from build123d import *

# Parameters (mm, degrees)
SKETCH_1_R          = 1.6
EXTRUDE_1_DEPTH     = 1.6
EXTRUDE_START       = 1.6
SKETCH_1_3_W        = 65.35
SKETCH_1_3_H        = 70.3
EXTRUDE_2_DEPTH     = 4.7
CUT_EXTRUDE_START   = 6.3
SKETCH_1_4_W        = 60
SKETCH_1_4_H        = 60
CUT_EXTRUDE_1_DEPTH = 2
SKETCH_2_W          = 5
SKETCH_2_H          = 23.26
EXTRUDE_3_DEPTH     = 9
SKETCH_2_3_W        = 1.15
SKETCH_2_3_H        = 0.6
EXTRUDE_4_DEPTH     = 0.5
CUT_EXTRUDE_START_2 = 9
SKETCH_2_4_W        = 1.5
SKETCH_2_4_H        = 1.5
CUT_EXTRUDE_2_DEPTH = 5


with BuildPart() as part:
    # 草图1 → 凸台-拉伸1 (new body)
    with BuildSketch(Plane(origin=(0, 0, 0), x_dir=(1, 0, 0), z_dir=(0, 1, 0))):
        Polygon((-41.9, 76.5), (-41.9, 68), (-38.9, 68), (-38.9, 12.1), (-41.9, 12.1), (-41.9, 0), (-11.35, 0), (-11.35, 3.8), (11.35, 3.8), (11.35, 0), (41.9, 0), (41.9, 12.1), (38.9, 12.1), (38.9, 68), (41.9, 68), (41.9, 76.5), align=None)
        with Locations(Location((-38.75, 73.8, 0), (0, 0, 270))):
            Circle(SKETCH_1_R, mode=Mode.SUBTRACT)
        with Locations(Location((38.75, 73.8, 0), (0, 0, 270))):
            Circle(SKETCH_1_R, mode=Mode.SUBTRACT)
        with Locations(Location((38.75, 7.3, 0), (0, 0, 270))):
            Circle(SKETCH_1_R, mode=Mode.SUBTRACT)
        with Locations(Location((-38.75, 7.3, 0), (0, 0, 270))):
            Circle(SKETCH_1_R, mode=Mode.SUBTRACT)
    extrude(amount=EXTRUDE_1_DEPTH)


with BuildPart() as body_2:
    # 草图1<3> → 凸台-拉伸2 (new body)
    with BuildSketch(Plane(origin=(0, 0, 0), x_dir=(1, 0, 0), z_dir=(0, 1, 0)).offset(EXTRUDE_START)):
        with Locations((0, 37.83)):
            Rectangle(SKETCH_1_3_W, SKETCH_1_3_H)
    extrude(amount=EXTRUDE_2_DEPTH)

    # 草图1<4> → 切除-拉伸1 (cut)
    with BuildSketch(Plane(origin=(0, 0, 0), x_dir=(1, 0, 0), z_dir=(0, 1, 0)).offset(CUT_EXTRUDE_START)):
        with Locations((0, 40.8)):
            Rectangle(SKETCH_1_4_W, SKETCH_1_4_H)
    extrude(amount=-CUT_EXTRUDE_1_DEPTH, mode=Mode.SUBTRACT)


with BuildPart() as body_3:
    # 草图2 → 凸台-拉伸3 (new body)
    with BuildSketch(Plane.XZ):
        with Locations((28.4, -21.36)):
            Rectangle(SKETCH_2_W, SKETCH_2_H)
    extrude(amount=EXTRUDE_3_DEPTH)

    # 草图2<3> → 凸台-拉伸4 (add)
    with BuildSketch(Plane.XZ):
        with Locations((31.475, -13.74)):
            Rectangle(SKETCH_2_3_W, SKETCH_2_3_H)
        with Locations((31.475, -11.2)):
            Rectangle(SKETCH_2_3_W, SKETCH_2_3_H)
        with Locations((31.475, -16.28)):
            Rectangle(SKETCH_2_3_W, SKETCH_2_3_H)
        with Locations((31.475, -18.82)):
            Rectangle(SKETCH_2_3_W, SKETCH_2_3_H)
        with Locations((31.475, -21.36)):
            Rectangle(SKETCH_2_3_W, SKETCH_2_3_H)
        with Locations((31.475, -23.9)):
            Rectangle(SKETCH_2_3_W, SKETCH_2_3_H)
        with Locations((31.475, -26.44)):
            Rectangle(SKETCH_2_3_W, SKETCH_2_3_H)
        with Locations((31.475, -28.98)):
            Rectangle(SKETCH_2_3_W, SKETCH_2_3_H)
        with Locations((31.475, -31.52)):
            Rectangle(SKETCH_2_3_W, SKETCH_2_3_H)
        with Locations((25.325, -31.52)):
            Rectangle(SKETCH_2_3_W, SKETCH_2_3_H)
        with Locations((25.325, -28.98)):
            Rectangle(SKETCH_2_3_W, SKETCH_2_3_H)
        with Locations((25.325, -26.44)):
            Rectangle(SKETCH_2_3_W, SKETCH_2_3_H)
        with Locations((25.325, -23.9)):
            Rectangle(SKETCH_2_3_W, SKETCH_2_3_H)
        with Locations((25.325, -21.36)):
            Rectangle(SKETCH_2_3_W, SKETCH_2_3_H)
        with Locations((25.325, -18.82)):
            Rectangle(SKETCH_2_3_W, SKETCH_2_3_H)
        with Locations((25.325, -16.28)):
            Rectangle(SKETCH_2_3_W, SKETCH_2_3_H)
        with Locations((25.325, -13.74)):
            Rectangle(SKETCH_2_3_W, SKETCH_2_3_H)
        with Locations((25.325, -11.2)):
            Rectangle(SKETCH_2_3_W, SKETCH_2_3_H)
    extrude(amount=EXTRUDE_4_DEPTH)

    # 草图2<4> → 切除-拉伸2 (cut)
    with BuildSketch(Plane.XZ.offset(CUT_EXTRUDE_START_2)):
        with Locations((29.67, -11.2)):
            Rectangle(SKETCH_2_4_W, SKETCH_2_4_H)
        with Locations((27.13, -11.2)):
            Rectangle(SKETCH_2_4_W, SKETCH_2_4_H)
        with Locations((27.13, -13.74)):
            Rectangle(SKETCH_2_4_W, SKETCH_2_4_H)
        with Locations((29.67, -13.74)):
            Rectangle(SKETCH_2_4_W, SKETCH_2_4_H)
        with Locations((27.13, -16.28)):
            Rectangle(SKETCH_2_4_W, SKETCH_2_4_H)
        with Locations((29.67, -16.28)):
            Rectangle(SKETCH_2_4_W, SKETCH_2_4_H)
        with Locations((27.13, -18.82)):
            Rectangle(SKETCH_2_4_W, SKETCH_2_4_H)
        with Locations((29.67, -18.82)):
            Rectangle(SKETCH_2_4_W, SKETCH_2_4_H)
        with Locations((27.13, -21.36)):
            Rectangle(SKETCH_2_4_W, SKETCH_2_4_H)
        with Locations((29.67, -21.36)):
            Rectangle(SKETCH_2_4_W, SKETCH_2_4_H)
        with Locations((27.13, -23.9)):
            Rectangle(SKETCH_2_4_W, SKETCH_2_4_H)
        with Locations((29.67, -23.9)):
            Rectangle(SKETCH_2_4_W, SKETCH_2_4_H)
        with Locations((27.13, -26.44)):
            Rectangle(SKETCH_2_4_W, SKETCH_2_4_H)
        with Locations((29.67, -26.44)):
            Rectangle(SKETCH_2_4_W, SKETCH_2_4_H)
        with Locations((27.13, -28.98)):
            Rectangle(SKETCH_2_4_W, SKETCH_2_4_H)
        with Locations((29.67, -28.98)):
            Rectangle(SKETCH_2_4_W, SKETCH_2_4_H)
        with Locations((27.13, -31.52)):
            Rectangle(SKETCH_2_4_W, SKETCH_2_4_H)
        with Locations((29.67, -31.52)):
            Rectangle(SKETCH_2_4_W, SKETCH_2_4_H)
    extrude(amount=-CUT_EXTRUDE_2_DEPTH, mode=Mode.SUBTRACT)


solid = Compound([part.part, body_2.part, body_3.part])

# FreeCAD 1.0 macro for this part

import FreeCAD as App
import Part
import Sketcher

V = App.Vector

doc = App.newDocument("Part")
body = doc.addObject("PartDesign::Body", "Body")

sketch1 = body.newObject("Sketcher::SketchObject", "Sketch")
sketch1.AttachmentSupport = (doc.getObject("XZ_Plane"), [""])
sketch1.MapMode = "FlatFace"
sketch1.addGeometry([
    Part.LineSegment(V(-41.9, -76.5, 0), V(-41.9, -68, 0)),
    Part.LineSegment(V(-41.9, -68, 0), V(-38.9, -68, 0)),
    Part.LineSegment(V(-38.9, -68, 0), V(-38.9, -12.1, 0)),
    Part.LineSegment(V(-38.9, -12.1, 0), V(-41.9, -12.1, 0)),
    Part.LineSegment(V(-41.9, -12.1, 0), V(-41.9, 0, 0)),
    Part.LineSegment(V(-41.9, 0, 0), V(-11.35, 0, 0)),
    Part.LineSegment(V(-11.35, 0, 0), V(-11.35, -3.8, 0)),
    Part.LineSegment(V(-11.35, -3.8, 0), V(11.35, -3.8, 0)),
    Part.LineSegment(V(11.35, -3.8, 0), V(11.35, 0, 0)),
    Part.LineSegment(V(11.35, 0, 0), V(41.9, 0, 0)),
    Part.LineSegment(V(41.9, 0, 0), V(41.9, -12.1, 0)),
    Part.LineSegment(V(41.9, -12.1, 0), V(38.9, -12.1, 0)),
    Part.LineSegment(V(38.9, -12.1, 0), V(38.9, -68, 0)),
    Part.LineSegment(V(38.9, -68, 0), V(41.9, -68, 0)),
    Part.LineSegment(V(41.9, -68, 0), V(41.9, -76.5, 0)),
    Part.LineSegment(V(41.9, -76.5, 0), V(-41.9, -76.5, 0)),
    Part.Circle(V(-38.75, -7.3, 0), V(0, 0, 1), 1.6),
    Part.Circle(V(38.75, -7.3, 0), V(0, 0, 1), 1.6),
    Part.Circle(V(-38.75, -73.8, 0), V(0, 0, 1), 1.6),
    Part.Circle(V(38.75, -73.8, 0), V(0, 0, 1), 1.6),
], False)
sketch1.addConstraint([
    Sketcher.Constraint("Coincident", 0, 2, 1, 1),
    Sketcher.Constraint("Coincident", 1, 2, 2, 1),
    Sketcher.Constraint("Coincident", 2, 2, 3, 1),
    Sketcher.Constraint("Coincident", 3, 2, 4, 1),
    Sketcher.Constraint("Coincident", 4, 2, 5, 1),
    Sketcher.Constraint("Coincident", 5, 2, 6, 1),
    Sketcher.Constraint("Coincident", 6, 2, 7, 1),
    Sketcher.Constraint("Coincident", 7, 2, 8, 1),
    Sketcher.Constraint("Coincident", 8, 2, 9, 1),
    Sketcher.Constraint("Coincident", 9, 2, 10, 1),
    Sketcher.Constraint("Coincident", 10, 2, 11, 1),
    Sketcher.Constraint("Coincident", 11, 2, 12, 1),
    Sketcher.Constraint("Coincident", 12, 2, 13, 1),
    Sketcher.Constraint("Coincident", 13, 2, 14, 1),
    Sketcher.Constraint("Coincident", 14, 2, 15, 1),
    Sketcher.Constraint("Coincident", 15, 2, 0, 1),
    Sketcher.Constraint("Vertical", 0),
    Sketcher.Constraint("Horizontal", 1),
    Sketcher.Constraint("Vertical", 2),
    Sketcher.Constraint("Horizontal", 3),
    Sketcher.Constraint("Vertical", 4),
    Sketcher.Constraint("Horizontal", 5),
    Sketcher.Constraint("Vertical", 6),
    Sketcher.Constraint("Horizontal", 7),
    Sketcher.Constraint("Vertical", 8),
    Sketcher.Constraint("Horizontal", 9),
    Sketcher.Constraint("Vertical", 10),
    Sketcher.Constraint("Horizontal", 11),
    Sketcher.Constraint("Vertical", 12),
    Sketcher.Constraint("Horizontal", 13),
    Sketcher.Constraint("Vertical", 14),
    Sketcher.Constraint("Horizontal", 15),
    Sketcher.Constraint("Equal", 16, 17),
    Sketcher.Constraint("Equal", 17, 18),
    Sketcher.Constraint("Equal", 18, 19),
    Sketcher.Constraint("Symmetric", 5, 2, 8, 2, -1, 1),
    Sketcher.Constraint("Symmetric", 16, 3, 17, 3, -2),
    Sketcher.Constraint("Symmetric", 18, 3, 19, 3, -2),
    Sketcher.Constraint("Symmetric", 4, 2, 9, 2, -2),
    Sketcher.Constraint("Symmetric", 2, 2, 11, 2, -2),
    Sketcher.Constraint("Symmetric", 0, 2, 13, 2, -2),
    Sketcher.Constraint("Vertical", 16, 3, 18, 3),
    Sketcher.Constraint("Vertical", 0, 2, 3, 2),
    Sketcher.Constraint("Diameter", 16, 3.2),
    Sketcher.Constraint("DistanceX", 1, 1, 1, 2, 3.0),
    Sketcher.Constraint("DistanceX", 7, 1, 7, 2, 22.7),
    Sketcher.Constraint("DistanceX", 15, 2, 15, 1, 83.8),
    Sketcher.Constraint("DistanceY", 0, 1, 0, 2, 8.5),
    Sketcher.Constraint("DistanceY", 2, 1, 2, 2, 55.9),
    Sketcher.Constraint("DistanceY", 4, 1, 4, 2, 12.1),
    Sketcher.Constraint("DistanceY", 6, 2, 6, 1, 3.8),
    Sketcher.Constraint("DistanceY", 16, 3, -1, 1, 7.3),
    Sketcher.Constraint("DistanceY", 18, 3, -1, 1, 73.8),
    Sketcher.Constraint("DistanceX", 16, 3, 17, 3, 77.5),
])
pad1 = body.newObject("PartDesign::Pad", "Pad")
pad1.Profile = sketch1
pad1.Length = 1.6
pad1.Reversed = True
body2 = doc.addObject("PartDesign::Body", "Body001")

sketch2 = body2.newObject("Sketcher::SketchObject", "Sketch001")
sketch2.AttachmentSupport = (doc.getObject("XZ_Plane001"), [""])
sketch2.MapMode = "FlatFace"
sketch2.AttachmentOffset = App.Placement(V(0, 0, -1.6), App.Rotation())
sketch2.addGeometry([
    Part.LineSegment(V(-32.675, -72.98, 0), V(-32.675, -2.68, 0)),
    Part.LineSegment(V(-32.675, -2.68, 0), V(32.675, -2.68, 0)),
    Part.LineSegment(V(32.675, -2.68, 0), V(32.675, -72.98, 0)),
    Part.LineSegment(V(32.675, -72.98, 0), V(-32.675, -72.98, 0)),
], False)
sketch2.addConstraint([
    Sketcher.Constraint("Coincident", 0, 2, 1, 1),
    Sketcher.Constraint("Coincident", 1, 2, 2, 1),
    Sketcher.Constraint("Coincident", 2, 2, 3, 1),
    Sketcher.Constraint("Coincident", 3, 2, 0, 1),
    Sketcher.Constraint("Vertical", 0),
    Sketcher.Constraint("Horizontal", 1),
    Sketcher.Constraint("Vertical", 2),
    Sketcher.Constraint("Horizontal", 3),
    Sketcher.Constraint("DistanceY", 0, 1, 0, 2, 70.3),
    Sketcher.Constraint("DistanceX", 1, 1, 1, 2, 65.35),
    Sketcher.Constraint("DistanceY", 0, 2, -1, 1, 2.68),
    Sketcher.Constraint("DistanceX", 0, 2, -1, 1, 32.675),
])
pad2 = body2.newObject("PartDesign::Pad", "Pad001")
pad2.Profile = sketch2
pad2.Length = 4.7
pad2.Reversed = True

sketch3 = body2.newObject("Sketcher::SketchObject", "Sketch002")
sketch3.AttachmentSupport = (doc.getObject("XZ_Plane001"), [""])
sketch3.MapMode = "FlatFace"
sketch3.AttachmentOffset = App.Placement(V(0, 0, -6.3), App.Rotation())
sketch3.addGeometry([
    Part.LineSegment(V(-30, -70.8, 0), V(-30, -10.8, 0)),
    Part.LineSegment(V(-30, -10.8, 0), V(30, -10.8, 0)),
    Part.LineSegment(V(30, -10.8, 0), V(30, -70.8, 0)),
    Part.LineSegment(V(30, -70.8, 0), V(-30, -70.8, 0)),
], False)
sketch3.addConstraint([
    Sketcher.Constraint("Coincident", 0, 2, 1, 1),
    Sketcher.Constraint("Coincident", 1, 2, 2, 1),
    Sketcher.Constraint("Coincident", 2, 2, 3, 1),
    Sketcher.Constraint("Coincident", 3, 2, 0, 1),
    Sketcher.Constraint("Vertical", 0),
    Sketcher.Constraint("Horizontal", 1),
    Sketcher.Constraint("Vertical", 2),
    Sketcher.Constraint("Horizontal", 3),
    Sketcher.Constraint("Equal", 3, 0),
    Sketcher.Constraint("DistanceX", 1, 1, 1, 2, 60.0),
    Sketcher.Constraint("DistanceX", 0, 2, -1, 1, 30.0),
    Sketcher.Constraint("DistanceY", 0, 2, -1, 1, 10.8),
])
pocket1 = body2.newObject("PartDesign::Pocket", "Pocket")
pocket1.Profile = sketch3
pocket1.Length = 2
pocket1.Reversed = True
body3 = doc.addObject("PartDesign::Body", "Body002")

sketch4 = body3.newObject("Sketcher::SketchObject", "Sketch003")
sketch4.AttachmentSupport = (doc.getObject("XZ_Plane002"), [""])
sketch4.MapMode = "FlatFace"
sketch4.addGeometry([
    Part.LineSegment(V(25.9, -9.73, 0), V(25.9, -32.99, 0)),
    Part.LineSegment(V(25.9, -32.99, 0), V(30.9, -32.99, 0)),
    Part.LineSegment(V(30.9, -32.99, 0), V(30.9, -9.73, 0)),
    Part.LineSegment(V(30.9, -9.73, 0), V(25.9, -9.73, 0)),
], False)
sketch4.addConstraint([
    Sketcher.Constraint("Coincident", 0, 2, 1, 1),
    Sketcher.Constraint("Coincident", 1, 2, 2, 1),
    Sketcher.Constraint("Coincident", 2, 2, 3, 1),
    Sketcher.Constraint("Coincident", 3, 2, 0, 1),
    Sketcher.Constraint("Vertical", 0),
    Sketcher.Constraint("Horizontal", 1),
    Sketcher.Constraint("Vertical", 2),
    Sketcher.Constraint("Horizontal", 3),
    Sketcher.Constraint("DistanceX", 1, 1, 1, 2, 5.0),
    Sketcher.Constraint("DistanceY", 0, 2, 0, 1, 23.26),
    Sketcher.Constraint("DistanceX", -1, 1, 0, 2, 25.9),
    Sketcher.Constraint("DistanceY", 0, 2, -1, 1, 32.99),
])
pad3 = body3.newObject("PartDesign::Pad", "Pad002")
pad3.Profile = sketch4
pad3.Length = 9

sketch5 = body3.newObject("Sketcher::SketchObject", "Sketch004")
sketch5.AttachmentSupport = (doc.getObject("XZ_Plane002"), [""])
sketch5.MapMode = "FlatFace"
sketch5.addGeometry([
    Part.LineSegment(V(30.9, -13.44, 0), V(30.9, -14.04, 0)),
    Part.LineSegment(V(30.9, -14.04, 0), V(32.05, -14.04, 0)),
    Part.LineSegment(V(32.05, -14.04, 0), V(32.05, -13.44, 0)),
    Part.LineSegment(V(32.05, -13.44, 0), V(30.9, -13.44, 0)),
    Part.LineSegment(V(30.9, -10.9, 0), V(30.9, -11.5, 0)),
    Part.LineSegment(V(30.9, -11.5, 0), V(32.05, -11.5, 0)),
    Part.LineSegment(V(32.05, -11.5, 0), V(32.05, -10.9, 0)),
    Part.LineSegment(V(32.05, -10.9, 0), V(30.9, -10.9, 0)),
    Part.LineSegment(V(30.9, -15.98, 0), V(30.9, -16.58, 0)),
    Part.LineSegment(V(30.9, -16.58, 0), V(32.05, -16.58, 0)),
    Part.LineSegment(V(32.05, -16.58, 0), V(32.05, -15.98, 0)),
    Part.LineSegment(V(32.05, -15.98, 0), V(30.9, -15.98, 0)),
    Part.LineSegment(V(30.9, -18.52, 0), V(30.9, -19.12, 0)),
    Part.LineSegment(V(30.9, -19.12, 0), V(32.05, -19.12, 0)),
    Part.LineSegment(V(32.05, -19.12, 0), V(32.05, -18.52, 0)),
    Part.LineSegment(V(32.05, -18.52, 0), V(30.9, -18.52, 0)),
    Part.LineSegment(V(30.9, -21.06, 0), V(30.9, -21.66, 0)),
    Part.LineSegment(V(30.9, -21.66, 0), V(32.05, -21.66, 0)),
    Part.LineSegment(V(32.05, -21.66, 0), V(32.05, -21.06, 0)),
    Part.LineSegment(V(32.05, -21.06, 0), V(30.9, -21.06, 0)),
    Part.LineSegment(V(30.9, -23.6, 0), V(30.9, -24.2, 0)),
    Part.LineSegment(V(30.9, -24.2, 0), V(32.05, -24.2, 0)),
    Part.LineSegment(V(32.05, -24.2, 0), V(32.05, -23.6, 0)),
    Part.LineSegment(V(32.05, -23.6, 0), V(30.9, -23.6, 0)),
    Part.LineSegment(V(30.9, -26.14, 0), V(30.9, -26.74, 0)),
    Part.LineSegment(V(30.9, -26.74, 0), V(32.05, -26.74, 0)),
    Part.LineSegment(V(32.05, -26.74, 0), V(32.05, -26.14, 0)),
    Part.LineSegment(V(32.05, -26.14, 0), V(30.9, -26.14, 0)),
    Part.LineSegment(V(30.9, -28.68, 0), V(30.9, -29.28, 0)),
    Part.LineSegment(V(30.9, -29.28, 0), V(32.05, -29.28, 0)),
    Part.LineSegment(V(32.05, -29.28, 0), V(32.05, -28.68, 0)),
    Part.LineSegment(V(32.05, -28.68, 0), V(30.9, -28.68, 0)),
    Part.LineSegment(V(30.9, -31.22, 0), V(30.9, -31.82, 0)),
    Part.LineSegment(V(30.9, -31.82, 0), V(32.05, -31.82, 0)),
    Part.LineSegment(V(32.05, -31.82, 0), V(32.05, -31.22, 0)),
    Part.LineSegment(V(32.05, -31.22, 0), V(30.9, -31.22, 0)),
    Part.LineSegment(V(24.75, -31.22, 0), V(24.75, -31.82, 0)),
    Part.LineSegment(V(24.75, -31.82, 0), V(25.9, -31.82, 0)),
    Part.LineSegment(V(25.9, -31.82, 0), V(25.9, -31.22, 0)),
    Part.LineSegment(V(25.9, -31.22, 0), V(24.75, -31.22, 0)),
    Part.LineSegment(V(24.75, -28.68, 0), V(24.75, -29.28, 0)),
    Part.LineSegment(V(24.75, -29.28, 0), V(25.9, -29.28, 0)),
    Part.LineSegment(V(25.9, -29.28, 0), V(25.9, -28.68, 0)),
    Part.LineSegment(V(25.9, -28.68, 0), V(24.75, -28.68, 0)),
    Part.LineSegment(V(24.75, -26.14, 0), V(24.75, -26.74, 0)),
    Part.LineSegment(V(24.75, -26.74, 0), V(25.9, -26.74, 0)),
    Part.LineSegment(V(25.9, -26.74, 0), V(25.9, -26.14, 0)),
    Part.LineSegment(V(25.9, -26.14, 0), V(24.75, -26.14, 0)),
    Part.LineSegment(V(24.75, -23.6, 0), V(24.75, -24.2, 0)),
    Part.LineSegment(V(24.75, -24.2, 0), V(25.9, -24.2, 0)),
    Part.LineSegment(V(25.9, -24.2, 0), V(25.9, -23.6, 0)),
    Part.LineSegment(V(25.9, -23.6, 0), V(24.75, -23.6, 0)),
    Part.LineSegment(V(24.75, -21.06, 0), V(24.75, -21.66, 0)),
    Part.LineSegment(V(24.75, -21.66, 0), V(25.9, -21.66, 0)),
    Part.LineSegment(V(25.9, -21.66, 0), V(25.9, -21.06, 0)),
    Part.LineSegment(V(25.9, -21.06, 0), V(24.75, -21.06, 0)),
    Part.LineSegment(V(24.75, -18.52, 0), V(24.75, -19.12, 0)),
    Part.LineSegment(V(24.75, -19.12, 0), V(25.9, -19.12, 0)),
    Part.LineSegment(V(25.9, -19.12, 0), V(25.9, -18.52, 0)),
    Part.LineSegment(V(25.9, -18.52, 0), V(24.75, -18.52, 0)),
    Part.LineSegment(V(24.75, -15.98, 0), V(24.75, -16.58, 0)),
    Part.LineSegment(V(24.75, -16.58, 0), V(25.9, -16.58, 0)),
    Part.LineSegment(V(25.9, -16.58, 0), V(25.9, -15.98, 0)),
    Part.LineSegment(V(25.9, -15.98, 0), V(24.75, -15.98, 0)),
    Part.LineSegment(V(24.75, -13.44, 0), V(24.75, -14.04, 0)),
    Part.LineSegment(V(24.75, -14.04, 0), V(25.9, -14.04, 0)),
    Part.LineSegment(V(25.9, -14.04, 0), V(25.9, -13.44, 0)),
    Part.LineSegment(V(25.9, -13.44, 0), V(24.75, -13.44, 0)),
    Part.LineSegment(V(24.75, -10.9, 0), V(24.75, -11.5, 0)),
    Part.LineSegment(V(24.75, -11.5, 0), V(25.9, -11.5, 0)),
    Part.LineSegment(V(25.9, -11.5, 0), V(25.9, -10.9, 0)),
    Part.LineSegment(V(25.9, -10.9, 0), V(24.75, -10.9, 0)),
], False)
sketch5.addConstraint([
    Sketcher.Constraint("Coincident", 0, 2, 1, 1),
    Sketcher.Constraint("Coincident", 1, 2, 2, 1),
    Sketcher.Constraint("Coincident", 2, 2, 3, 1),
    Sketcher.Constraint("Coincident", 3, 2, 0, 1),
    Sketcher.Constraint("Coincident", 4, 2, 5, 1),
    Sketcher.Constraint("Coincident", 5, 2, 6, 1),
    Sketcher.Constraint("Coincident", 6, 2, 7, 1),
    Sketcher.Constraint("Coincident", 7, 2, 4, 1),
    Sketcher.Constraint("Coincident", 8, 2, 9, 1),
    Sketcher.Constraint("Coincident", 9, 2, 10, 1),
    Sketcher.Constraint("Coincident", 10, 2, 11, 1),
    Sketcher.Constraint("Coincident", 11, 2, 8, 1),
    Sketcher.Constraint("Coincident", 12, 2, 13, 1),
    Sketcher.Constraint("Coincident", 13, 2, 14, 1),
    Sketcher.Constraint("Coincident", 14, 2, 15, 1),
    Sketcher.Constraint("Coincident", 15, 2, 12, 1),
    Sketcher.Constraint("Coincident", 16, 2, 17, 1),
    Sketcher.Constraint("Coincident", 17, 2, 18, 1),
    Sketcher.Constraint("Coincident", 18, 2, 19, 1),
    Sketcher.Constraint("Coincident", 19, 2, 16, 1),
    Sketcher.Constraint("Coincident", 20, 2, 21, 1),
    Sketcher.Constraint("Coincident", 21, 2, 22, 1),
    Sketcher.Constraint("Coincident", 22, 2, 23, 1),
    Sketcher.Constraint("Coincident", 23, 2, 20, 1),
    Sketcher.Constraint("Coincident", 24, 2, 25, 1),
    Sketcher.Constraint("Coincident", 25, 2, 26, 1),
    Sketcher.Constraint("Coincident", 26, 2, 27, 1),
    Sketcher.Constraint("Coincident", 27, 2, 24, 1),
    Sketcher.Constraint("Coincident", 28, 2, 29, 1),
    Sketcher.Constraint("Coincident", 29, 2, 30, 1),
    Sketcher.Constraint("Coincident", 30, 2, 31, 1),
    Sketcher.Constraint("Coincident", 31, 2, 28, 1),
    Sketcher.Constraint("Coincident", 32, 2, 33, 1),
    Sketcher.Constraint("Coincident", 33, 2, 34, 1),
    Sketcher.Constraint("Coincident", 34, 2, 35, 1),
    Sketcher.Constraint("Coincident", 35, 2, 32, 1),
    Sketcher.Constraint("Coincident", 36, 2, 37, 1),
    Sketcher.Constraint("Coincident", 37, 2, 38, 1),
    Sketcher.Constraint("Coincident", 38, 2, 39, 1),
    Sketcher.Constraint("Coincident", 39, 2, 36, 1),
    Sketcher.Constraint("Coincident", 40, 2, 41, 1),
    Sketcher.Constraint("Coincident", 41, 2, 42, 1),
    Sketcher.Constraint("Coincident", 42, 2, 43, 1),
    Sketcher.Constraint("Coincident", 43, 2, 40, 1),
    Sketcher.Constraint("Coincident", 44, 2, 45, 1),
    Sketcher.Constraint("Coincident", 45, 2, 46, 1),
    Sketcher.Constraint("Coincident", 46, 2, 47, 1),
    Sketcher.Constraint("Coincident", 47, 2, 44, 1),
    Sketcher.Constraint("Coincident", 48, 2, 49, 1),
    Sketcher.Constraint("Coincident", 49, 2, 50, 1),
    Sketcher.Constraint("Coincident", 50, 2, 51, 1),
    Sketcher.Constraint("Coincident", 51, 2, 48, 1),
    Sketcher.Constraint("Coincident", 52, 2, 53, 1),
    Sketcher.Constraint("Coincident", 53, 2, 54, 1),
    Sketcher.Constraint("Coincident", 54, 2, 55, 1),
    Sketcher.Constraint("Coincident", 55, 2, 52, 1),
    Sketcher.Constraint("Coincident", 56, 2, 57, 1),
    Sketcher.Constraint("Coincident", 57, 2, 58, 1),
    Sketcher.Constraint("Coincident", 58, 2, 59, 1),
    Sketcher.Constraint("Coincident", 59, 2, 56, 1),
    Sketcher.Constraint("Coincident", 60, 2, 61, 1),
    Sketcher.Constraint("Coincident", 61, 2, 62, 1),
    Sketcher.Constraint("Coincident", 62, 2, 63, 1),
    Sketcher.Constraint("Coincident", 63, 2, 60, 1),
    Sketcher.Constraint("Coincident", 64, 2, 65, 1),
    Sketcher.Constraint("Coincident", 65, 2, 66, 1),
    Sketcher.Constraint("Coincident", 66, 2, 67, 1),
    Sketcher.Constraint("Coincident", 67, 2, 64, 1),
    Sketcher.Constraint("Coincident", 68, 2, 69, 1),
    Sketcher.Constraint("Coincident", 69, 2, 70, 1),
    Sketcher.Constraint("Coincident", 70, 2, 71, 1),
    Sketcher.Constraint("Coincident", 71, 2, 68, 1),
    Sketcher.Constraint("Vertical", 0),
    Sketcher.Constraint("Horizontal", 1),
    Sketcher.Constraint("Vertical", 2),
    Sketcher.Constraint("Horizontal", 3),
    Sketcher.Constraint("Vertical", 4),
    Sketcher.Constraint("Horizontal", 5),
    Sketcher.Constraint("Vertical", 6),
    Sketcher.Constraint("Horizontal", 7),
    Sketcher.Constraint("Vertical", 8),
    Sketcher.Constraint("Horizontal", 9),
    Sketcher.Constraint("Vertical", 10),
    Sketcher.Constraint("Horizontal", 11),
    Sketcher.Constraint("Vertical", 12),
    Sketcher.Constraint("Horizontal", 13),
    Sketcher.Constraint("Vertical", 14),
    Sketcher.Constraint("Horizontal", 15),
    Sketcher.Constraint("Vertical", 16),
    Sketcher.Constraint("Horizontal", 17),
    Sketcher.Constraint("Vertical", 18),
    Sketcher.Constraint("Horizontal", 19),
    Sketcher.Constraint("Vertical", 20),
    Sketcher.Constraint("Horizontal", 21),
    Sketcher.Constraint("Vertical", 22),
    Sketcher.Constraint("Horizontal", 23),
    Sketcher.Constraint("Vertical", 24),
    Sketcher.Constraint("Horizontal", 25),
    Sketcher.Constraint("Vertical", 26),
    Sketcher.Constraint("Horizontal", 27),
    Sketcher.Constraint("Vertical", 28),
    Sketcher.Constraint("Horizontal", 29),
    Sketcher.Constraint("Vertical", 30),
    Sketcher.Constraint("Horizontal", 31),
    Sketcher.Constraint("Vertical", 32),
    Sketcher.Constraint("Horizontal", 33),
    Sketcher.Constraint("Vertical", 34),
    Sketcher.Constraint("Horizontal", 35),
    Sketcher.Constraint("Vertical", 36),
    Sketcher.Constraint("Horizontal", 37),
    Sketcher.Constraint("Vertical", 38),
    Sketcher.Constraint("Horizontal", 39),
    Sketcher.Constraint("Vertical", 40),
    Sketcher.Constraint("Horizontal", 41),
    Sketcher.Constraint("Vertical", 42),
    Sketcher.Constraint("Horizontal", 43),
    Sketcher.Constraint("Vertical", 44),
    Sketcher.Constraint("Horizontal", 45),
    Sketcher.Constraint("Vertical", 46),
    Sketcher.Constraint("Horizontal", 47),
    Sketcher.Constraint("Vertical", 48),
    Sketcher.Constraint("Horizontal", 49),
    Sketcher.Constraint("Vertical", 50),
    Sketcher.Constraint("Horizontal", 51),
    Sketcher.Constraint("Vertical", 52),
    Sketcher.Constraint("Horizontal", 53),
    Sketcher.Constraint("Vertical", 54),
    Sketcher.Constraint("Horizontal", 55),
    Sketcher.Constraint("Vertical", 56),
    Sketcher.Constraint("Horizontal", 57),
    Sketcher.Constraint("Vertical", 58),
    Sketcher.Constraint("Horizontal", 59),
    Sketcher.Constraint("Vertical", 60),
    Sketcher.Constraint("Horizontal", 61),
    Sketcher.Constraint("Vertical", 62),
    Sketcher.Constraint("Horizontal", 63),
    Sketcher.Constraint("Vertical", 64),
    Sketcher.Constraint("Horizontal", 65),
    Sketcher.Constraint("Vertical", 66),
    Sketcher.Constraint("Horizontal", 67),
    Sketcher.Constraint("Vertical", 68),
    Sketcher.Constraint("Horizontal", 69),
    Sketcher.Constraint("Vertical", 70),
    Sketcher.Constraint("Horizontal", 71),
    Sketcher.Constraint("Horizontal", 33, 2, 36, 2),
    Sketcher.Constraint("Horizontal", 35, 2, 38, 2),
    Sketcher.Constraint("Horizontal", 29, 2, 40, 2),
    Sketcher.Constraint("Horizontal", 31, 2, 42, 2),
    Sketcher.Constraint("Horizontal", 25, 2, 44, 2),
    Sketcher.Constraint("Horizontal", 27, 2, 46, 2),
    Sketcher.Constraint("Horizontal", 21, 2, 48, 2),
    Sketcher.Constraint("Horizontal", 23, 2, 50, 2),
    Sketcher.Constraint("Horizontal", 17, 2, 52, 2),
    Sketcher.Constraint("Horizontal", 19, 2, 54, 2),
    Sketcher.Constraint("Horizontal", 13, 2, 56, 2),
    Sketcher.Constraint("Horizontal", 15, 2, 58, 2),
    Sketcher.Constraint("Horizontal", 9, 2, 60, 2),
    Sketcher.Constraint("Horizontal", 11, 2, 62, 2),
    Sketcher.Constraint("Horizontal", 1, 2, 64, 2),
    Sketcher.Constraint("Horizontal", 3, 2, 66, 2),
    Sketcher.Constraint("Horizontal", 5, 2, 68, 2),
    Sketcher.Constraint("Horizontal", 7, 2, 70, 2),
    Sketcher.Constraint("Vertical", 3, 2, 4, 2),
    Sketcher.Constraint("Vertical", 2, 2, 5, 2),
    Sketcher.Constraint("Vertical", 7, 2, 8, 2),
    Sketcher.Constraint("Vertical", 6, 2, 9, 2),
    Sketcher.Constraint("Vertical", 11, 2, 12, 2),
    Sketcher.Constraint("Vertical", 10, 2, 13, 2),
    Sketcher.Constraint("Vertical", 15, 2, 16, 2),
    Sketcher.Constraint("Vertical", 14, 2, 17, 2),
    Sketcher.Constraint("Vertical", 19, 2, 20, 2),
    Sketcher.Constraint("Vertical", 18, 2, 21, 2),
    Sketcher.Constraint("Vertical", 23, 2, 24, 2),
    Sketcher.Constraint("Vertical", 22, 2, 25, 2),
    Sketcher.Constraint("Vertical", 27, 2, 28, 2),
    Sketcher.Constraint("Vertical", 26, 2, 29, 2),
    Sketcher.Constraint("Vertical", 31, 2, 32, 2),
    Sketcher.Constraint("Vertical", 30, 2, 33, 2),
    Sketcher.Constraint("Vertical", 39, 2, 40, 2),
    Sketcher.Constraint("Vertical", 38, 2, 41, 2),
    Sketcher.Constraint("Vertical", 43, 2, 44, 2),
    Sketcher.Constraint("Vertical", 42, 2, 45, 2),
    Sketcher.Constraint("Vertical", 47, 2, 48, 2),
    Sketcher.Constraint("Vertical", 46, 2, 49, 2),
    Sketcher.Constraint("Vertical", 51, 2, 52, 2),
    Sketcher.Constraint("Vertical", 50, 2, 53, 2),
    Sketcher.Constraint("Vertical", 55, 2, 56, 2),
    Sketcher.Constraint("Vertical", 54, 2, 57, 2),
    Sketcher.Constraint("Vertical", 59, 2, 60, 2),
    Sketcher.Constraint("Vertical", 58, 2, 61, 2),
    Sketcher.Constraint("Vertical", 63, 2, 64, 2),
    Sketcher.Constraint("Vertical", 62, 2, 65, 2),
    Sketcher.Constraint("Vertical", 67, 2, 68, 2),
    Sketcher.Constraint("Vertical", 66, 2, 69, 2),
    Sketcher.Constraint("Equal", 35, 37),
    Sketcher.Constraint("Equal", 2, 4),
    Sketcher.Constraint("Equal", 6, 8),
    Sketcher.Constraint("Equal", 10, 12),
    Sketcher.Constraint("Equal", 14, 16),
    Sketcher.Constraint("Equal", 18, 20),
    Sketcher.Constraint("Equal", 22, 24),
    Sketcher.Constraint("Equal", 26, 28),
    Sketcher.Constraint("Equal", 30, 32),
    Sketcher.Constraint("DistanceY", 0, 2, 0, 1, 0.6),
    Sketcher.Constraint("DistanceX", 1, 1, 1, 2, 1.15),
    Sketcher.Constraint("DistanceX", -1, 1, 0, 2, 30.9),
    Sketcher.Constraint("DistanceY", 4, 2, -1, 1, 11.5),
    Sketcher.Constraint("DistanceY", 20, 2, -1, 1, 24.2),
    Sketcher.Constraint("DistanceX", -1, 1, 37, 2, 25.9),
    Sketcher.Constraint("DistanceY", 0, 2, -1, 1, 14.04),
    Sketcher.Constraint("DistanceY", 8, 2, -1, 1, 16.58),
    Sketcher.Constraint("DistanceY", 12, 2, -1, 1, 19.12),
    Sketcher.Constraint("DistanceY", 16, 2, -1, 1, 21.66),
    Sketcher.Constraint("DistanceY", 24, 2, -1, 1, 26.74),
    Sketcher.Constraint("DistanceY", 28, 2, -1, 1, 29.28),
    Sketcher.Constraint("DistanceY", 32, 2, -1, 1, 31.82),
])
pad4 = body3.newObject("PartDesign::Pad", "Pad003")
pad4.Profile = sketch5
pad4.Length = 0.5

sketch6 = body3.newObject("Sketcher::SketchObject", "Sketch005")
sketch6.AttachmentSupport = (doc.getObject("XZ_Plane002"), [""])
sketch6.MapMode = "FlatFace"
sketch6.AttachmentOffset = App.Placement(V(0, 0, 9), App.Rotation())
sketch6.addGeometry([
    Part.LineSegment(V(28.92, -10.45, 0), V(28.92, -11.95, 0)),
    Part.LineSegment(V(28.92, -11.95, 0), V(30.42, -11.95, 0)),
    Part.LineSegment(V(30.42, -11.95, 0), V(30.42, -10.45, 0)),
    Part.LineSegment(V(30.42, -10.45, 0), V(28.92, -10.45, 0)),
    Part.LineSegment(V(26.38, -10.45, 0), V(26.38, -11.95, 0)),
    Part.LineSegment(V(26.38, -11.95, 0), V(27.88, -11.95, 0)),
    Part.LineSegment(V(27.88, -11.95, 0), V(27.88, -10.45, 0)),
    Part.LineSegment(V(27.88, -10.45, 0), V(26.38, -10.45, 0)),
    Part.LineSegment(V(26.38, -12.99, 0), V(26.38, -14.49, 0)),
    Part.LineSegment(V(26.38, -14.49, 0), V(27.88, -14.49, 0)),
    Part.LineSegment(V(27.88, -14.49, 0), V(27.88, -12.99, 0)),
    Part.LineSegment(V(27.88, -12.99, 0), V(26.38, -12.99, 0)),
    Part.LineSegment(V(28.92, -12.99, 0), V(28.92, -14.49, 0)),
    Part.LineSegment(V(28.92, -14.49, 0), V(30.42, -14.49, 0)),
    Part.LineSegment(V(30.42, -14.49, 0), V(30.42, -12.99, 0)),
    Part.LineSegment(V(30.42, -12.99, 0), V(28.92, -12.99, 0)),
    Part.LineSegment(V(26.38, -15.53, 0), V(26.38, -17.03, 0)),
    Part.LineSegment(V(26.38, -17.03, 0), V(27.88, -17.03, 0)),
    Part.LineSegment(V(27.88, -17.03, 0), V(27.88, -15.53, 0)),
    Part.LineSegment(V(27.88, -15.53, 0), V(26.38, -15.53, 0)),
    Part.LineSegment(V(28.92, -15.53, 0), V(28.92, -17.03, 0)),
    Part.LineSegment(V(28.92, -17.03, 0), V(30.42, -17.03, 0)),
    Part.LineSegment(V(30.42, -17.03, 0), V(30.42, -15.53, 0)),
    Part.LineSegment(V(30.42, -15.53, 0), V(28.92, -15.53, 0)),
    Part.LineSegment(V(26.38, -18.07, 0), V(26.38, -19.57, 0)),
    Part.LineSegment(V(26.38, -19.57, 0), V(27.88, -19.57, 0)),
    Part.LineSegment(V(27.88, -19.57, 0), V(27.88, -18.07, 0)),
    Part.LineSegment(V(27.88, -18.07, 0), V(26.38, -18.07, 0)),
    Part.LineSegment(V(28.92, -18.07, 0), V(28.92, -19.57, 0)),
    Part.LineSegment(V(28.92, -19.57, 0), V(30.42, -19.57, 0)),
    Part.LineSegment(V(30.42, -19.57, 0), V(30.42, -18.07, 0)),
    Part.LineSegment(V(30.42, -18.07, 0), V(28.92, -18.07, 0)),
    Part.LineSegment(V(26.38, -20.61, 0), V(26.38, -22.11, 0)),
    Part.LineSegment(V(26.38, -22.11, 0), V(27.88, -22.11, 0)),
    Part.LineSegment(V(27.88, -22.11, 0), V(27.88, -20.61, 0)),
    Part.LineSegment(V(27.88, -20.61, 0), V(26.38, -20.61, 0)),
    Part.LineSegment(V(28.92, -20.61, 0), V(28.92, -22.11, 0)),
    Part.LineSegment(V(28.92, -22.11, 0), V(30.42, -22.11, 0)),
    Part.LineSegment(V(30.42, -22.11, 0), V(30.42, -20.61, 0)),
    Part.LineSegment(V(30.42, -20.61, 0), V(28.92, -20.61, 0)),
    Part.LineSegment(V(26.38, -23.15, 0), V(26.38, -24.65, 0)),
    Part.LineSegment(V(26.38, -24.65, 0), V(27.88, -24.65, 0)),
    Part.LineSegment(V(27.88, -24.65, 0), V(27.88, -23.15, 0)),
    Part.LineSegment(V(27.88, -23.15, 0), V(26.38, -23.15, 0)),
    Part.LineSegment(V(28.92, -23.15, 0), V(28.92, -24.65, 0)),
    Part.LineSegment(V(28.92, -24.65, 0), V(30.42, -24.65, 0)),
    Part.LineSegment(V(30.42, -24.65, 0), V(30.42, -23.15, 0)),
    Part.LineSegment(V(30.42, -23.15, 0), V(28.92, -23.15, 0)),
    Part.LineSegment(V(26.38, -25.69, 0), V(26.38, -27.19, 0)),
    Part.LineSegment(V(26.38, -27.19, 0), V(27.88, -27.19, 0)),
    Part.LineSegment(V(27.88, -27.19, 0), V(27.88, -25.69, 0)),
    Part.LineSegment(V(27.88, -25.69, 0), V(26.38, -25.69, 0)),
    Part.LineSegment(V(28.92, -25.69, 0), V(28.92, -27.19, 0)),
    Part.LineSegment(V(28.92, -27.19, 0), V(30.42, -27.19, 0)),
    Part.LineSegment(V(30.42, -27.19, 0), V(30.42, -25.69, 0)),
    Part.LineSegment(V(30.42, -25.69, 0), V(28.92, -25.69, 0)),
    Part.LineSegment(V(26.38, -28.23, 0), V(26.38, -29.73, 0)),
    Part.LineSegment(V(26.38, -29.73, 0), V(27.88, -29.73, 0)),
    Part.LineSegment(V(27.88, -29.73, 0), V(27.88, -28.23, 0)),
    Part.LineSegment(V(27.88, -28.23, 0), V(26.38, -28.23, 0)),
    Part.LineSegment(V(28.92, -28.23, 0), V(28.92, -29.73, 0)),
    Part.LineSegment(V(28.92, -29.73, 0), V(30.42, -29.73, 0)),
    Part.LineSegment(V(30.42, -29.73, 0), V(30.42, -28.23, 0)),
    Part.LineSegment(V(30.42, -28.23, 0), V(28.92, -28.23, 0)),
    Part.LineSegment(V(26.38, -30.77, 0), V(26.38, -32.27, 0)),
    Part.LineSegment(V(26.38, -32.27, 0), V(27.88, -32.27, 0)),
    Part.LineSegment(V(27.88, -32.27, 0), V(27.88, -30.77, 0)),
    Part.LineSegment(V(27.88, -30.77, 0), V(26.38, -30.77, 0)),
    Part.LineSegment(V(28.92, -30.77, 0), V(28.92, -32.27, 0)),
    Part.LineSegment(V(28.92, -32.27, 0), V(30.42, -32.27, 0)),
    Part.LineSegment(V(30.42, -32.27, 0), V(30.42, -30.77, 0)),
    Part.LineSegment(V(30.42, -30.77, 0), V(28.92, -30.77, 0)),
], False)
sketch6.addConstraint([
    Sketcher.Constraint("Coincident", 0, 2, 1, 1),
    Sketcher.Constraint("Coincident", 1, 2, 2, 1),
    Sketcher.Constraint("Coincident", 2, 2, 3, 1),
    Sketcher.Constraint("Coincident", 3, 2, 0, 1),
    Sketcher.Constraint("Coincident", 4, 2, 5, 1),
    Sketcher.Constraint("Coincident", 5, 2, 6, 1),
    Sketcher.Constraint("Coincident", 6, 2, 7, 1),
    Sketcher.Constraint("Coincident", 7, 2, 4, 1),
    Sketcher.Constraint("Coincident", 8, 2, 9, 1),
    Sketcher.Constraint("Coincident", 9, 2, 10, 1),
    Sketcher.Constraint("Coincident", 10, 2, 11, 1),
    Sketcher.Constraint("Coincident", 11, 2, 8, 1),
    Sketcher.Constraint("Coincident", 12, 2, 13, 1),
    Sketcher.Constraint("Coincident", 13, 2, 14, 1),
    Sketcher.Constraint("Coincident", 14, 2, 15, 1),
    Sketcher.Constraint("Coincident", 15, 2, 12, 1),
    Sketcher.Constraint("Coincident", 16, 2, 17, 1),
    Sketcher.Constraint("Coincident", 17, 2, 18, 1),
    Sketcher.Constraint("Coincident", 18, 2, 19, 1),
    Sketcher.Constraint("Coincident", 19, 2, 16, 1),
    Sketcher.Constraint("Coincident", 20, 2, 21, 1),
    Sketcher.Constraint("Coincident", 21, 2, 22, 1),
    Sketcher.Constraint("Coincident", 22, 2, 23, 1),
    Sketcher.Constraint("Coincident", 23, 2, 20, 1),
    Sketcher.Constraint("Coincident", 24, 2, 25, 1),
    Sketcher.Constraint("Coincident", 25, 2, 26, 1),
    Sketcher.Constraint("Coincident", 26, 2, 27, 1),
    Sketcher.Constraint("Coincident", 27, 2, 24, 1),
    Sketcher.Constraint("Coincident", 28, 2, 29, 1),
    Sketcher.Constraint("Coincident", 29, 2, 30, 1),
    Sketcher.Constraint("Coincident", 30, 2, 31, 1),
    Sketcher.Constraint("Coincident", 31, 2, 28, 1),
    Sketcher.Constraint("Coincident", 32, 2, 33, 1),
    Sketcher.Constraint("Coincident", 33, 2, 34, 1),
    Sketcher.Constraint("Coincident", 34, 2, 35, 1),
    Sketcher.Constraint("Coincident", 35, 2, 32, 1),
    Sketcher.Constraint("Coincident", 36, 2, 37, 1),
    Sketcher.Constraint("Coincident", 37, 2, 38, 1),
    Sketcher.Constraint("Coincident", 38, 2, 39, 1),
    Sketcher.Constraint("Coincident", 39, 2, 36, 1),
    Sketcher.Constraint("Coincident", 40, 2, 41, 1),
    Sketcher.Constraint("Coincident", 41, 2, 42, 1),
    Sketcher.Constraint("Coincident", 42, 2, 43, 1),
    Sketcher.Constraint("Coincident", 43, 2, 40, 1),
    Sketcher.Constraint("Coincident", 44, 2, 45, 1),
    Sketcher.Constraint("Coincident", 45, 2, 46, 1),
    Sketcher.Constraint("Coincident", 46, 2, 47, 1),
    Sketcher.Constraint("Coincident", 47, 2, 44, 1),
    Sketcher.Constraint("Coincident", 48, 2, 49, 1),
    Sketcher.Constraint("Coincident", 49, 2, 50, 1),
    Sketcher.Constraint("Coincident", 50, 2, 51, 1),
    Sketcher.Constraint("Coincident", 51, 2, 48, 1),
    Sketcher.Constraint("Coincident", 52, 2, 53, 1),
    Sketcher.Constraint("Coincident", 53, 2, 54, 1),
    Sketcher.Constraint("Coincident", 54, 2, 55, 1),
    Sketcher.Constraint("Coincident", 55, 2, 52, 1),
    Sketcher.Constraint("Coincident", 56, 2, 57, 1),
    Sketcher.Constraint("Coincident", 57, 2, 58, 1),
    Sketcher.Constraint("Coincident", 58, 2, 59, 1),
    Sketcher.Constraint("Coincident", 59, 2, 56, 1),
    Sketcher.Constraint("Coincident", 60, 2, 61, 1),
    Sketcher.Constraint("Coincident", 61, 2, 62, 1),
    Sketcher.Constraint("Coincident", 62, 2, 63, 1),
    Sketcher.Constraint("Coincident", 63, 2, 60, 1),
    Sketcher.Constraint("Coincident", 64, 2, 65, 1),
    Sketcher.Constraint("Coincident", 65, 2, 66, 1),
    Sketcher.Constraint("Coincident", 66, 2, 67, 1),
    Sketcher.Constraint("Coincident", 67, 2, 64, 1),
    Sketcher.Constraint("Coincident", 68, 2, 69, 1),
    Sketcher.Constraint("Coincident", 69, 2, 70, 1),
    Sketcher.Constraint("Coincident", 70, 2, 71, 1),
    Sketcher.Constraint("Coincident", 71, 2, 68, 1),
    Sketcher.Constraint("Vertical", 0),
    Sketcher.Constraint("Horizontal", 1),
    Sketcher.Constraint("Vertical", 2),
    Sketcher.Constraint("Horizontal", 3),
    Sketcher.Constraint("Vertical", 4),
    Sketcher.Constraint("Horizontal", 5),
    Sketcher.Constraint("Vertical", 6),
    Sketcher.Constraint("Horizontal", 7),
    Sketcher.Constraint("Vertical", 8),
    Sketcher.Constraint("Horizontal", 9),
    Sketcher.Constraint("Vertical", 10),
    Sketcher.Constraint("Horizontal", 11),
    Sketcher.Constraint("Vertical", 12),
    Sketcher.Constraint("Horizontal", 13),
    Sketcher.Constraint("Vertical", 14),
    Sketcher.Constraint("Horizontal", 15),
    Sketcher.Constraint("Vertical", 16),
    Sketcher.Constraint("Horizontal", 17),
    Sketcher.Constraint("Vertical", 18),
    Sketcher.Constraint("Horizontal", 19),
    Sketcher.Constraint("Vertical", 20),
    Sketcher.Constraint("Horizontal", 21),
    Sketcher.Constraint("Vertical", 22),
    Sketcher.Constraint("Horizontal", 23),
    Sketcher.Constraint("Vertical", 24),
    Sketcher.Constraint("Horizontal", 25),
    Sketcher.Constraint("Vertical", 26),
    Sketcher.Constraint("Horizontal", 27),
    Sketcher.Constraint("Vertical", 28),
    Sketcher.Constraint("Horizontal", 29),
    Sketcher.Constraint("Vertical", 30),
    Sketcher.Constraint("Horizontal", 31),
    Sketcher.Constraint("Vertical", 32),
    Sketcher.Constraint("Horizontal", 33),
    Sketcher.Constraint("Vertical", 34),
    Sketcher.Constraint("Horizontal", 35),
    Sketcher.Constraint("Vertical", 36),
    Sketcher.Constraint("Horizontal", 37),
    Sketcher.Constraint("Vertical", 38),
    Sketcher.Constraint("Horizontal", 39),
    Sketcher.Constraint("Vertical", 40),
    Sketcher.Constraint("Horizontal", 41),
    Sketcher.Constraint("Vertical", 42),
    Sketcher.Constraint("Horizontal", 43),
    Sketcher.Constraint("Vertical", 44),
    Sketcher.Constraint("Horizontal", 45),
    Sketcher.Constraint("Vertical", 46),
    Sketcher.Constraint("Horizontal", 47),
    Sketcher.Constraint("Vertical", 48),
    Sketcher.Constraint("Horizontal", 49),
    Sketcher.Constraint("Vertical", 50),
    Sketcher.Constraint("Horizontal", 51),
    Sketcher.Constraint("Vertical", 52),
    Sketcher.Constraint("Horizontal", 53),
    Sketcher.Constraint("Vertical", 54),
    Sketcher.Constraint("Horizontal", 55),
    Sketcher.Constraint("Vertical", 56),
    Sketcher.Constraint("Horizontal", 57),
    Sketcher.Constraint("Vertical", 58),
    Sketcher.Constraint("Horizontal", 59),
    Sketcher.Constraint("Vertical", 60),
    Sketcher.Constraint("Horizontal", 61),
    Sketcher.Constraint("Vertical", 62),
    Sketcher.Constraint("Horizontal", 63),
    Sketcher.Constraint("Vertical", 64),
    Sketcher.Constraint("Horizontal", 65),
    Sketcher.Constraint("Vertical", 66),
    Sketcher.Constraint("Horizontal", 67),
    Sketcher.Constraint("Vertical", 68),
    Sketcher.Constraint("Horizontal", 69),
    Sketcher.Constraint("Vertical", 70),
    Sketcher.Constraint("Horizontal", 71),
    Sketcher.Constraint("Horizontal", 1, 2, 4, 2),
    Sketcher.Constraint("Horizontal", 3, 2, 6, 2),
    Sketcher.Constraint("Horizontal", 9, 2, 12, 2),
    Sketcher.Constraint("Horizontal", 11, 2, 14, 2),
    Sketcher.Constraint("Horizontal", 17, 2, 20, 2),
    Sketcher.Constraint("Horizontal", 19, 2, 22, 2),
    Sketcher.Constraint("Horizontal", 25, 2, 28, 2),
    Sketcher.Constraint("Horizontal", 27, 2, 30, 2),
    Sketcher.Constraint("Horizontal", 33, 2, 36, 2),
    Sketcher.Constraint("Horizontal", 35, 2, 38, 2),
    Sketcher.Constraint("Horizontal", 41, 2, 44, 2),
    Sketcher.Constraint("Horizontal", 43, 2, 46, 2),
    Sketcher.Constraint("Horizontal", 49, 2, 52, 2),
    Sketcher.Constraint("Horizontal", 51, 2, 54, 2),
    Sketcher.Constraint("Horizontal", 57, 2, 60, 2),
    Sketcher.Constraint("Horizontal", 59, 2, 62, 2),
    Sketcher.Constraint("Horizontal", 65, 2, 68, 2),
    Sketcher.Constraint("Horizontal", 67, 2, 70, 2),
    Sketcher.Constraint("Vertical", 7, 2, 8, 2),
    Sketcher.Constraint("Vertical", 6, 2, 9, 2),
    Sketcher.Constraint("Vertical", 3, 2, 12, 2),
    Sketcher.Constraint("Vertical", 2, 2, 13, 2),
    Sketcher.Constraint("Vertical", 11, 2, 16, 2),
    Sketcher.Constraint("Vertical", 10, 2, 17, 2),
    Sketcher.Constraint("Vertical", 15, 2, 20, 2),
    Sketcher.Constraint("Vertical", 14, 2, 21, 2),
    Sketcher.Constraint("Vertical", 19, 2, 24, 2),
    Sketcher.Constraint("Vertical", 18, 2, 25, 2),
    Sketcher.Constraint("Vertical", 23, 2, 28, 2),
    Sketcher.Constraint("Vertical", 22, 2, 29, 2),
    Sketcher.Constraint("Vertical", 27, 2, 32, 2),
    Sketcher.Constraint("Vertical", 26, 2, 33, 2),
    Sketcher.Constraint("Vertical", 31, 2, 36, 2),
    Sketcher.Constraint("Vertical", 30, 2, 37, 2),
    Sketcher.Constraint("Vertical", 35, 2, 40, 2),
    Sketcher.Constraint("Vertical", 34, 2, 41, 2),
    Sketcher.Constraint("Vertical", 39, 2, 44, 2),
    Sketcher.Constraint("Vertical", 38, 2, 45, 2),
    Sketcher.Constraint("Vertical", 43, 2, 48, 2),
    Sketcher.Constraint("Vertical", 42, 2, 49, 2),
    Sketcher.Constraint("Vertical", 47, 2, 52, 2),
    Sketcher.Constraint("Vertical", 46, 2, 53, 2),
    Sketcher.Constraint("Vertical", 51, 2, 56, 2),
    Sketcher.Constraint("Vertical", 50, 2, 57, 2),
    Sketcher.Constraint("Vertical", 55, 2, 60, 2),
    Sketcher.Constraint("Vertical", 54, 2, 61, 2),
    Sketcher.Constraint("Vertical", 59, 2, 64, 2),
    Sketcher.Constraint("Vertical", 58, 2, 65, 2),
    Sketcher.Constraint("Vertical", 63, 2, 68, 2),
    Sketcher.Constraint("Vertical", 62, 2, 69, 2),
    Sketcher.Constraint("Equal", 3, 5),
    Sketcher.Constraint("Equal", 71, 0),
    Sketcher.Constraint("Equal", 6, 8),
    Sketcher.Constraint("Equal", 14, 16),
    Sketcher.Constraint("Equal", 22, 24),
    Sketcher.Constraint("Equal", 30, 32),
    Sketcher.Constraint("Equal", 38, 40),
    Sketcher.Constraint("Equal", 46, 48),
    Sketcher.Constraint("Equal", 54, 56),
    Sketcher.Constraint("Equal", 62, 64),
    Sketcher.Constraint("DistanceX", 1, 1, 1, 2, 1.5),
    Sketcher.Constraint("DistanceX", -1, 1, 0, 2, 28.92),
    Sketcher.Constraint("DistanceY", 0, 2, -1, 1, 11.95),
    Sketcher.Constraint("DistanceX", -1, 1, 4, 2, 26.38),
    Sketcher.Constraint("DistanceY", 8, 2, -1, 1, 14.49),
    Sketcher.Constraint("DistanceY", 16, 2, -1, 1, 17.03),
    Sketcher.Constraint("DistanceY", 24, 2, -1, 1, 19.57),
    Sketcher.Constraint("DistanceY", 32, 2, -1, 1, 22.11),
    Sketcher.Constraint("DistanceY", 40, 2, -1, 1, 24.65),
    Sketcher.Constraint("DistanceY", 48, 2, -1, 1, 27.19),
    Sketcher.Constraint("DistanceY", 56, 2, -1, 1, 29.73),
    Sketcher.Constraint("DistanceY", 64, 2, -1, 1, 32.27),
])
pocket2 = body3.newObject("PartDesign::Pocket", "Pocket001")
pocket2.Profile = sketch6
pocket2.Length = 5

doc.recompute()
